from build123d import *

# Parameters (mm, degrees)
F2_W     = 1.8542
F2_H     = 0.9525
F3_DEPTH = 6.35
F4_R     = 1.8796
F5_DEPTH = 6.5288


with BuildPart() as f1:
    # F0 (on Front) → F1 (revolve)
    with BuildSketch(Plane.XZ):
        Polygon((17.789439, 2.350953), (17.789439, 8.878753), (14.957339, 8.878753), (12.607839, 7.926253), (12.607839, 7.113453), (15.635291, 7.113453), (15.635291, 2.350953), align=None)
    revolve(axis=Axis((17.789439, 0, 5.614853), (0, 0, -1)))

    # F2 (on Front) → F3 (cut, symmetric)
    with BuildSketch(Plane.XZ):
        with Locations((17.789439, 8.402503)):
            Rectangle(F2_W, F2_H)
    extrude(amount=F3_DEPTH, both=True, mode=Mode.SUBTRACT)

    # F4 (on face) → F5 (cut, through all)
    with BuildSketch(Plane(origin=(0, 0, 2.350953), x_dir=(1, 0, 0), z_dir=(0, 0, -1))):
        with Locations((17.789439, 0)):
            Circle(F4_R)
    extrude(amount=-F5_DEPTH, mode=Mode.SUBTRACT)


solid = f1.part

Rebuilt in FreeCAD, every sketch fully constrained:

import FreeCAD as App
import Part
import Sketcher
Q = App.Units.Quantity

doc = App.newDocument("Part")
body = doc.addObject("PartDesign::Body", "Body")

# Sketch on XZ plane
sketch1 = body.newObject("Sketcher::SketchObject", "Sketch")
sketch1.AttachmentSupport = (doc.getObject("XZ_Plane"), [""])
sketch1.MapMode = "FlatFace"
sketch1.addGeometry([
    Part.LineSegment(App.Vector(17.8, 2.4, 0), App.Vector(17.8, 8.9, 0)),  # 0
    Part.LineSegment(App.Vector(17.8, 8.9, 0), App.Vector(15, 8.9, 0)),  # 1
    Part.LineSegment(App.Vector(15, 8.9, 0), App.Vector(12.6, 7.9, 0)),  # 2
    Part.LineSegment(App.Vector(12.6, 7.9, 0), App.Vector(12.6, 7.1, 0)),  # 3
    Part.LineSegment(App.Vector(12.6, 7.1, 0), App.Vector(15.6, 7.1, 0)),  # 4
    Part.LineSegment(App.Vector(15.6, 7.1, 0), App.Vector(15.6, 2.4, 0)),  # 5
    Part.LineSegment(App.Vector(15.6, 2.4, 0), App.Vector(17.8, 2.4, 0)),  # 6
], False)
sketch1.addGeometry(Part.LineSegment(App.Vector(17.8, 8.9, 0), App.Vector(17.8, 2.4, 0)), True)  # axis
sketch1.addConstraint([
    Sketcher.Constraint("Coincident", 0, 2, 1, 1),
    Sketcher.Constraint("Coincident", 1, 2, 2, 1),
    Sketcher.Constraint("Coincident", 2, 2, 3, 1),
    Sketcher.Constraint("Coincident", 3, 2, 4, 1),
    Sketcher.Constraint("Coincident", 4, 2, 5, 1),
    Sketcher.Constraint("Coincident", 5, 2, 6, 1),
    Sketcher.Constraint("Coincident", 6, 2, 0, 1),
    Sketcher.Constraint("Vertical", 0),
    Sketcher.Constraint("Horizontal", 1),
    Sketcher.Constraint("Vertical", 3),
    Sketcher.Constraint("Horizontal", 4),
    Sketcher.Constraint("Vertical", 5),
    Sketcher.Constraint("Horizontal", 6),
    Sketcher.Constraint("Vertical", 7),
    Sketcher.Constraint("Coincident", 7, 1, 0, 2),
    Sketcher.Constraint("Horizontal", 5, 2, 7, 2),
    Sketcher.Constraint("DistanceY", 0, 1, 0, 2, Q("0.257 in")),
    Sketcher.Constraint("DistanceY", 3, 2, 3, 1, Q("0.032 in")),
    Sketcher.Constraint("DistanceY", 5, 2, 5, 1, Q("0.1875 in")),
    Sketcher.Constraint("DistanceX", 1, 2, 1, 1, Q("0.1115 in")),
    Sketcher.Constraint("DistanceX", 2, 2, 0, 2, Q("0.204 in")),
    Sketcher.Constraint("DistanceX", 6, 1, 6, 2, Q("2.154148 mm")),
    Sketcher.Constraint("DistanceX", -1, 1, 0, 2, Q("17.789439 mm")),
    Sketcher.Constraint("DistanceY", -1, 1, 0, 2, Q("8.878753 mm")),
])
revolution = body.newObject("PartDesign::Revolution", "Revolution")
revolution.Profile = sketch1
revolution.ReferenceAxis = (sketch1, ["Axis0"])
revolution.Angle = 360

# Sketch on XZ plane
sketch2 = body.newObject("Sketcher::SketchObject", "Sketch001")
sketch2.AttachmentSupport = (doc.getObject("XZ_Plane"), [""])
sketch2.MapMode = "FlatFace"
sketch2.addGeometry([
    Part.LineSegment(App.Vector(16.9, 8.9, 0), App.Vector(16.9, 7.9, 0)),
    Part.LineSegment(App.Vector(16.9, 7.9, 0), App.Vector(18.7, 7.9, 0)),
    Part.LineSegment(App.Vector(18.7, 7.9, 0), App.Vector(18.7, 8.9, 0)),
    Part.LineSegment(App.Vector(18.7, 8.9, 0), App.Vector(16.9, 8.9, 0)),
], False)
sketch2.addConstraint([
    Sketcher.Constraint("Coincident", 0, 2, 1, 1),
    Sketcher.Constraint("Coincident", 1, 2, 2, 1),
    Sketcher.Constraint("Coincident", 2, 2, 3, 1),
    Sketcher.Constraint("Coincident", 3, 2, 0, 1),
    Sketcher.Constraint("Vertical", 0),
    Sketcher.Constraint("Horizontal", 1),
    Sketcher.Constraint("Vertical", 2),
    Sketcher.Constraint("Horizontal", 3),
    Sketcher.Constraint("DistanceX", 1, 1, 1, 2, Q("0.073 in")),
    Sketcher.Constraint("DistanceY", 0, 2, 0, 1, Q("0.0375 in")),
    Sketcher.Constraint("DistanceX", -1, 1, 0, 2, Q("16.862339 mm")),
    Sketcher.Constraint("DistanceY", -1, 1, 0, 2, Q("7.926253 mm")),
])
pocket1 = body.newObject("PartDesign::Pocket", "Pocket")
pocket1.Profile = sketch2
pocket1.Length = Q("0.5 in")
pocket1.Midplane = True

# Sketch on XY plane
sketch3 = body.newObject("Sketcher::SketchObject", "Sketch002")
sketch3.AttachmentSupport = (doc.getObject("XY_Plane"), [""])
sketch3.MapMode = "FlatFace"
sketch3.AttachmentOffset = App.Placement(App.Vector(0, 0, 2.350953), App.Rotation())
sketch3.addGeometry(Part.Circle(App.Vector(17.8, 0, 0), App.Vector(0, 0, 1), 1.9), False)
sketch3.addConstraint([
    Sketcher.Constraint("PointOnObject", 0, 3, -1),
    Sketcher.Constraint("Diameter", 0, Q("0.148 in")),
    Sketcher.Constraint("DistanceX", -1, 1, 0, 3, Q("17.789439 mm")),
])
pocket2 = body.newObject("PartDesign::Pocket", "Pocket001")
pocket2.Profile = sketch3
pocket2.Type = "ThroughAll"
pocket2.Reversed = True

doc.recompute()
